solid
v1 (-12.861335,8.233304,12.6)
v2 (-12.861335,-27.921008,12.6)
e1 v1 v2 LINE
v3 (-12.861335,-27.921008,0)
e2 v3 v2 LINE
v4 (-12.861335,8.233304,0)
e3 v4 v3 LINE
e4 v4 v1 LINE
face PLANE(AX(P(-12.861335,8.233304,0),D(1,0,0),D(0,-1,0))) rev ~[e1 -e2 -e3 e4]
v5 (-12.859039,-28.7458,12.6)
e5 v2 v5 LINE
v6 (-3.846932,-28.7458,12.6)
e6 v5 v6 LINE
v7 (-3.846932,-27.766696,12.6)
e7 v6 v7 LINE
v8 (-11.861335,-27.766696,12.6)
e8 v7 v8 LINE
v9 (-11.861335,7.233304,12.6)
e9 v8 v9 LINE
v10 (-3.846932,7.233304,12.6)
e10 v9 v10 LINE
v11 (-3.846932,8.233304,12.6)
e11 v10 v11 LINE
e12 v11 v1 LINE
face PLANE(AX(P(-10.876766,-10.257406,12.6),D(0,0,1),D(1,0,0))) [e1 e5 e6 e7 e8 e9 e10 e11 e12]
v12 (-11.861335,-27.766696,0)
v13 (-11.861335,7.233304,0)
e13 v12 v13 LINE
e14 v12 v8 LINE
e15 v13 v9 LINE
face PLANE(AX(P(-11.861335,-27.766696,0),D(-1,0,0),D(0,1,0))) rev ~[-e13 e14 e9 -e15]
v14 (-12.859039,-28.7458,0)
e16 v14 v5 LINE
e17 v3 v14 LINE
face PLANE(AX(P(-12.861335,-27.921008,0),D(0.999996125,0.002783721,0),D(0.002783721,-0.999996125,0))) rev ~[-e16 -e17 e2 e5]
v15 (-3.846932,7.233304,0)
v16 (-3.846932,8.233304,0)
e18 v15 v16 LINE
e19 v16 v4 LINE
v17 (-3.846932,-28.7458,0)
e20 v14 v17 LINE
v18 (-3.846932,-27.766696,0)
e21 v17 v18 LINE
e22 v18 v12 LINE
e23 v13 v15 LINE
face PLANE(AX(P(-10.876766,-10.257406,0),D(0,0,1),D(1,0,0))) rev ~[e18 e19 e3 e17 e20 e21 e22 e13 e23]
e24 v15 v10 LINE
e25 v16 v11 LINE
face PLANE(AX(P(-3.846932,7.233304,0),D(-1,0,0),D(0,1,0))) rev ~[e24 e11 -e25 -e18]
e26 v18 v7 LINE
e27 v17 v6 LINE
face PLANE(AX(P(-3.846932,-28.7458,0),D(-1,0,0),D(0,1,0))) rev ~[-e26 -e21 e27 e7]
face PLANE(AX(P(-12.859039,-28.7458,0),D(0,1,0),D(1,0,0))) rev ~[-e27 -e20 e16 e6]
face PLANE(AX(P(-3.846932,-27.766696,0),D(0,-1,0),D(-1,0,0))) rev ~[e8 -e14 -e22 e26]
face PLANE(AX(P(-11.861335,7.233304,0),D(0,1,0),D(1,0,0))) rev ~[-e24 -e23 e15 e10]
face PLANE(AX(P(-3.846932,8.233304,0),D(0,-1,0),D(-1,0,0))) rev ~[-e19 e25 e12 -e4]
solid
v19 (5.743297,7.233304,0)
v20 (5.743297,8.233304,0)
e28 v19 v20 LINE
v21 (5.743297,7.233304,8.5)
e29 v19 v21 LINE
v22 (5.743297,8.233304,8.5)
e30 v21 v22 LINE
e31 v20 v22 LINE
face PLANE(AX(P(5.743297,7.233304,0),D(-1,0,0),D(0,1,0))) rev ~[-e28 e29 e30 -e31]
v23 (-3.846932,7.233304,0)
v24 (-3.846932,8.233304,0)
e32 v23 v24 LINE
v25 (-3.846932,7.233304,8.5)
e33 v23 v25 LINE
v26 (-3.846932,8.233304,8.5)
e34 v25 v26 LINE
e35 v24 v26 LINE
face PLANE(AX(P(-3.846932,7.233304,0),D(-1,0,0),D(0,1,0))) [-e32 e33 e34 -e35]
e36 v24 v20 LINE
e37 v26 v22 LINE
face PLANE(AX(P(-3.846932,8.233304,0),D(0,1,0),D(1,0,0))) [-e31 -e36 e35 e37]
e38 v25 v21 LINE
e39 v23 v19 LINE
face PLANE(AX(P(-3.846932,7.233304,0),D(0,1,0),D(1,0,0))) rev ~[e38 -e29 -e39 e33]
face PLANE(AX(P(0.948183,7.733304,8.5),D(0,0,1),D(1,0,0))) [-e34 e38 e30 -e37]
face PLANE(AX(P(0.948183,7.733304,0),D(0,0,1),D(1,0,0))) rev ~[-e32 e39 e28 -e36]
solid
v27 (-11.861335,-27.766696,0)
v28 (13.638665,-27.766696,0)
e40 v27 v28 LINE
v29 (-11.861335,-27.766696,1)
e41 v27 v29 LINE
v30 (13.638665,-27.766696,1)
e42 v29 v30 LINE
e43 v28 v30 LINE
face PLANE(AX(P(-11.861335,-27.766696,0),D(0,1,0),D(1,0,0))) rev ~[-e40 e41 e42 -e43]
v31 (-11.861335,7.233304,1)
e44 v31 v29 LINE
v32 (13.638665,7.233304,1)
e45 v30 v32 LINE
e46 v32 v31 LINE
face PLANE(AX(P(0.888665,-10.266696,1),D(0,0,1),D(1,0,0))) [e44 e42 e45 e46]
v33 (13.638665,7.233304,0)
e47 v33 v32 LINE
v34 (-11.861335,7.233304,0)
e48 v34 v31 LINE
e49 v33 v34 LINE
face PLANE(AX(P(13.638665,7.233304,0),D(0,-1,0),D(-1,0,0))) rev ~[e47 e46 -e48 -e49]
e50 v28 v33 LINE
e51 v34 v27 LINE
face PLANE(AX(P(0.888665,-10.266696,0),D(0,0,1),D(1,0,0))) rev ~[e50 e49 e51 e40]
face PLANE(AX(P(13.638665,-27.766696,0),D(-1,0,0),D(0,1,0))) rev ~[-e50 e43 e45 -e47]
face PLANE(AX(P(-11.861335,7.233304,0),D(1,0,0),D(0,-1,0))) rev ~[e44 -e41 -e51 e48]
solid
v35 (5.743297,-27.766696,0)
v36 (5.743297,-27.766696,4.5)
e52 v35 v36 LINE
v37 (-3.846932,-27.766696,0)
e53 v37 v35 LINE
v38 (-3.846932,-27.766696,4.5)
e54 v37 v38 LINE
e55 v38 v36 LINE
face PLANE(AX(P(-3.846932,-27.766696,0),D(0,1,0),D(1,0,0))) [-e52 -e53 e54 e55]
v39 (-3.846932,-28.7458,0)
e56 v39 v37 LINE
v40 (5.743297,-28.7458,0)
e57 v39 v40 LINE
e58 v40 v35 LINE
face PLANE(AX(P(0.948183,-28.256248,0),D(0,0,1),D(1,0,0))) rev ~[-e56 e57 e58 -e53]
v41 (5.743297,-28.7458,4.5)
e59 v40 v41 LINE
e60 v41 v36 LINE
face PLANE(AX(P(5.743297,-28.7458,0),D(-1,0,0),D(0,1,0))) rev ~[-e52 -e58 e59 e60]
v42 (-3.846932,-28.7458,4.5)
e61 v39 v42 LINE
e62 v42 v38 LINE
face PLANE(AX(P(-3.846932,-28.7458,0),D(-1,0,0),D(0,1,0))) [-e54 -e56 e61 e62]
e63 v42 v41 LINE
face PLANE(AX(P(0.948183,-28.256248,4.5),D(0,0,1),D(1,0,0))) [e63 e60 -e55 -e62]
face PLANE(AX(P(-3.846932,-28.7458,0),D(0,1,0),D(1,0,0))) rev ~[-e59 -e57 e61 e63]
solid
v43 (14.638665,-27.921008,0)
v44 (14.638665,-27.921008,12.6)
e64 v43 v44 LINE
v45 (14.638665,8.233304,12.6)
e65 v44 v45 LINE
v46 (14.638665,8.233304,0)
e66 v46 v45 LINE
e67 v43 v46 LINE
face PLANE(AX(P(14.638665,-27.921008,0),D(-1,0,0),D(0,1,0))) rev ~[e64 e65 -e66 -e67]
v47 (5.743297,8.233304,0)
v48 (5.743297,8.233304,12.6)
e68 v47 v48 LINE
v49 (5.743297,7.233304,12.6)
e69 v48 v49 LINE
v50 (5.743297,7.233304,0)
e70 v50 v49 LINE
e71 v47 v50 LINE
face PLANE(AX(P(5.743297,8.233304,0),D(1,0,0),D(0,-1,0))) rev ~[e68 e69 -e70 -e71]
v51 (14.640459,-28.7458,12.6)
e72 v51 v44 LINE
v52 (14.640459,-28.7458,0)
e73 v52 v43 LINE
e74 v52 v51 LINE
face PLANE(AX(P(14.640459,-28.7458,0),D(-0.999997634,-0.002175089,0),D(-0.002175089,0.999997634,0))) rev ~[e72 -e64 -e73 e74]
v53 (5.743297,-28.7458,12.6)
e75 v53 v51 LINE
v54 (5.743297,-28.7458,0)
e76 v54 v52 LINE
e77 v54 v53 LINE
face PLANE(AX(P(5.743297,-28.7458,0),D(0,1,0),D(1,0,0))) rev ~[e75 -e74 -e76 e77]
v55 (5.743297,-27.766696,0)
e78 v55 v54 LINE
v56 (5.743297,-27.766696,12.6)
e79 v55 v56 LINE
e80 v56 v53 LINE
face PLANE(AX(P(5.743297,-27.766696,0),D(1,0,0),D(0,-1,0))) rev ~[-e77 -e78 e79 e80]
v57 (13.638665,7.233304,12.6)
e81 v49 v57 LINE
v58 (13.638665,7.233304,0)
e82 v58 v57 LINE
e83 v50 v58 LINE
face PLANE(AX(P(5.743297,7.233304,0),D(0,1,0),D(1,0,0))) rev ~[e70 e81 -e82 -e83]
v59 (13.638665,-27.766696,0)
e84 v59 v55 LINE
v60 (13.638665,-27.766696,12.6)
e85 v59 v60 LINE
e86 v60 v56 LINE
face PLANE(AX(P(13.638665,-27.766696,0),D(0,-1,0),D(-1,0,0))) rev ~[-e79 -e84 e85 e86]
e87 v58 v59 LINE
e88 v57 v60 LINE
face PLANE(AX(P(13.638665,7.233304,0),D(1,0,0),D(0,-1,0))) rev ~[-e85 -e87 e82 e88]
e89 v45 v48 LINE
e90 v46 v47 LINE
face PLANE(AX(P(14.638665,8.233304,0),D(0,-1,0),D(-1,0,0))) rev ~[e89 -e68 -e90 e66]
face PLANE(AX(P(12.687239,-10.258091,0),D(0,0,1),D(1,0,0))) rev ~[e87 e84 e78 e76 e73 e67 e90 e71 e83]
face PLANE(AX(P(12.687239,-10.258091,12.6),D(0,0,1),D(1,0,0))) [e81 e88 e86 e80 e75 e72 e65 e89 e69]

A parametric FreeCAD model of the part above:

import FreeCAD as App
import Part
import Sketcher

V = App.Vector
Q = App.Units.Quantity


def add_polygon(sketch, points):
    """Adds a closed chain of lines whose ends are joined by coincident constraints."""
    first, n = sketch.GeometryCount, len(points)
    for a, b in zip(points, points[1:] + points[:1]):
        sketch.addGeometry(Part.LineSegment(App.Vector(*a, 0), App.Vector(*b, 0)), False)
    for i in range(n):
        sketch.addConstraint(Sketcher.Constraint("Coincident", first + i, 2, first + (i + 1) % n, 1))

doc = App.newDocument("Part")
body = doc.addObject("PartDesign::Body", "Body")

sketch1 = doc.addObject("Sketcher::SketchObject", "Sketch")
body.addObject(sketch1)
sketch1.AttachmentSupport = (doc.XY_Plane, [""])
sketch1.MapMode = "FlatFace"
add_polygon(sketch1, [(5.743297, 8.233304), (5.743297, 7.233304), (13.638665, 7.233304), (13.638665, -27.766696), (5.743297, -27.766696), (5.743297, -28.7458), (14.640459, -28.7458), (14.638665, -27.921008), (14.638665, 8.233304)])
sketch1.addConstraint([
    Sketcher.Constraint("Vertical", 0),
    Sketcher.Constraint("Horizontal", 1),
    Sketcher.Constraint("Vertical", 2),
    Sketcher.Constraint("Horizontal", 3),
    Sketcher.Constraint("Vertical", 4),
    Sketcher.Constraint("Horizontal", 5),
    Sketcher.Constraint("Vertical", 7),
    Sketcher.Constraint("Horizontal", 8),
    Sketcher.Constraint("Vertical", 0, 2, 3, 2),
    Sketcher.Constraint("DistanceY", 0, 2, 0, 1, Q("1 mm")),
    Sketcher.Constraint("DistanceY", 2, 2, 2, 1, Q("35 mm")),
    Sketcher.Constraint("DistanceX", 2, 2, 6, 2, Q("1 mm")),
    Sketcher.Constraint("DistanceY", 4, 2, -1, 1, Q("28.7458 mm")),
    Sketcher.Constraint("DistanceX", 1, 1, 1, 2, Q("7.895368 mm")),
    Sketcher.Constraint("DistanceX", 5, 1, 5, 2, Q("8.897162 mm")),
    Sketcher.Constraint("DistanceY", 4, 2, 4, 1, Q("0.979104 mm")),
    Sketcher.Constraint("DistanceY", 7, 1, 7, 2, Q("36.154312 mm")),
    Sketcher.Constraint("DistanceX", -1, 1, 5, 2, Q("14.640459 mm")),
])
pad1 = doc.addObject("PartDesign::Pad", "Pad")
body.addObject(pad1)
pad1.Profile = sketch1
pad1.Length = 12.6
body2 = doc.addObject("PartDesign::Body", "Body001")

sketch2 = doc.addObject("Sketcher::SketchObject", "Sketch001")
body2.addObject(sketch2)
sketch2.AttachmentSupport = (doc.getObject("XY_Plane001"), [""])
sketch2.MapMode = "FlatFace"
add_polygon(sketch2, [(-11.861335, -27.766696), (-11.861335, 7.233304), (-3.846932, 7.233304), (-3.846932, 8.233304), (-12.861335, 8.233304), (-12.861335, -27.921008), (-12.859039, -28.7458), (-3.846932, -28.7458), (-3.846932, -27.766696)])
sketch2.addConstraint([
    Sketcher.Constraint("Vertical", 0),
    Sketcher.Constraint("Horizontal", 1),
    Sketcher.Constraint("Vertical", 2),
    Sketcher.Constraint("Horizontal", 3),
    Sketcher.Constraint("Vertical", 4),
    Sketcher.Constraint("Horizontal", 6),
    Sketcher.Constraint("Vertical", 7),
    Sketcher.Constraint("Horizontal", 8),
    Sketcher.Constraint("Vertical", 2, 2, 6, 2),
    Sketcher.Constraint("DistanceY", 0, 1, 0, 2, Q("35 mm")),
    Sketcher.Constraint("DistanceY", 2, 1, 2, 2, Q("1 mm")),
    Sketcher.Constraint("DistanceX", 3, 2, 0, 2, Q("1 mm")),
    Sketcher.Constraint("DistanceY", 5, 2, -1, 1, Q("28.7458 mm")),
    Sketcher.Constraint("DistanceX", 1, 1, 1, 2, Q("8.014403 mm")),
    Sketcher.Constraint("DistanceX", 6, 1, 6, 2, Q("9.012107 mm")),
    Sketcher.Constraint("DistanceY", 4, 2, 4, 1, Q("36.154312 mm")),
    Sketcher.Constraint("DistanceY", 7, 1, 7, 2, Q("0.979104 mm")),
    Sketcher.Constraint("DistanceX", 1, 2, -1, 1, Q("3.846932 mm")),
])
pad2 = doc.addObject("PartDesign::Pad", "Pad001")
body2.addObject(pad2)
pad2.Profile = sketch2
pad2.Length = 12.6
body3 = doc.addObject("PartDesign::Body", "Body002")

sketch3 = doc.addObject("Sketcher::SketchObject", "Sketch002")
body3.addObject(sketch3)
sketch3.AttachmentSupport = (doc.getObject("XY_Plane002"), [""])
sketch3.MapMode = "FlatFace"
add_polygon(sketch3, [(-3.846932, -27.766696), (-3.846932, -28.7458), (5.743297, -28.7458), (5.743297, -27.766696)])
sketch3.addConstraint([
    Sketcher.Constraint("Vertical", 0),
    Sketcher.Constraint("Horizontal", 1),
    Sketcher.Constraint("Vertical", 2),
    Sketcher.Constraint("Horizontal", 3),
    Sketcher.Constraint("DistanceX", 1, 1, 1, 2, Q("9.590229 mm")),
    Sketcher.Constraint("DistanceY", 0, 2, -1, 1, Q("28.7458 mm")),
    Sketcher.Constraint("DistanceY", 0, 2, 0, 1, Q("0.979104 mm")),
    Sketcher.Constraint("DistanceX", 0, 2, -1, 1, Q("3.846932 mm")),
])
pad3 = doc.addObject("PartDesign::Pad", "Pad002")
body3.addObject(pad3)
pad3.Profile = sketch3
pad3.Length = 4.5
body4 = doc.addObject("PartDesign::Body", "Body003")

sketch4 = doc.addObject("Sketcher::SketchObject", "Sketch003")
body4.addObject(sketch4)
sketch4.AttachmentSupport = (doc.getObject("XY_Plane003"), [""])
sketch4.MapMode = "FlatFace"
add_polygon(sketch4, [(-3.846932, 8.233304), (-3.846932, 7.233304), (5.743297, 7.233304), (5.743297, 8.233304)])
sketch4.addConstraint([
    Sketcher.Constraint("Vertical", 0),
    Sketcher.Constraint("Horizontal", 1),
    Sketcher.Constraint("Vertical", 2),
    Sketcher.Constraint("Horizontal", 3),
    Sketcher.Constraint("DistanceY", 0, 2, 0, 1, Q("1 mm")),
    Sketcher.Constraint("DistanceX", 1, 1, 1, 2, Q("9.590229 mm")),
    Sketcher.Constraint("DistanceX", 0, 2, -1, 1, Q("3.846932 mm")),
    Sketcher.Constraint("DistanceY", -1, 1, 0, 2, Q("7.233304 mm")),
])
pad4 = doc.addObject("PartDesign::Pad", "Pad003")
body4.addObject(pad4)
pad4.Profile = sketch4
pad4.Length = 8.5
body5 = doc.addObject("PartDesign::Body", "Body004")

sketch5 = doc.addObject("Sketcher::SketchObject", "Sketch004")
body5.addObject(sketch5)
sketch5.AttachmentSupport = (doc.getObject("XY_Plane004"), [""])
sketch5.MapMode = "FlatFace"
add_polygon(sketch5, [(-11.861335, 7.233304), (-11.861335, -27.766696), (13.638665, -27.766696), (13.638665, 7.233304)])
sketch5.addConstraint([
    Sketcher.Constraint("Vertical", 0),
    Sketcher.Constraint("Horizontal", 1),
    Sketcher.Constraint("Vertical", 2),
    Sketcher.Constraint("Horizontal", 3),
    Sketcher.Constraint("DistanceY", 0, 2, 0, 1, Q("35 mm")),
    Sketcher.Constraint("DistanceX", 1, 1, 1, 2, Q("25.5 mm")),
    Sketcher.Constraint("DistanceX", 0, 2, -1, 1, Q("11.861335 mm")),
    Sketcher.Constraint("DistanceY", 0, 2, -1, 1, Q("27.766696 mm")),
])
pad5 = doc.addObject("PartDesign::Pad", "Pad004")
body5.addObject(pad5)
pad5.Profile = sketch5
pad5.Length = 1

doc.recompute()
